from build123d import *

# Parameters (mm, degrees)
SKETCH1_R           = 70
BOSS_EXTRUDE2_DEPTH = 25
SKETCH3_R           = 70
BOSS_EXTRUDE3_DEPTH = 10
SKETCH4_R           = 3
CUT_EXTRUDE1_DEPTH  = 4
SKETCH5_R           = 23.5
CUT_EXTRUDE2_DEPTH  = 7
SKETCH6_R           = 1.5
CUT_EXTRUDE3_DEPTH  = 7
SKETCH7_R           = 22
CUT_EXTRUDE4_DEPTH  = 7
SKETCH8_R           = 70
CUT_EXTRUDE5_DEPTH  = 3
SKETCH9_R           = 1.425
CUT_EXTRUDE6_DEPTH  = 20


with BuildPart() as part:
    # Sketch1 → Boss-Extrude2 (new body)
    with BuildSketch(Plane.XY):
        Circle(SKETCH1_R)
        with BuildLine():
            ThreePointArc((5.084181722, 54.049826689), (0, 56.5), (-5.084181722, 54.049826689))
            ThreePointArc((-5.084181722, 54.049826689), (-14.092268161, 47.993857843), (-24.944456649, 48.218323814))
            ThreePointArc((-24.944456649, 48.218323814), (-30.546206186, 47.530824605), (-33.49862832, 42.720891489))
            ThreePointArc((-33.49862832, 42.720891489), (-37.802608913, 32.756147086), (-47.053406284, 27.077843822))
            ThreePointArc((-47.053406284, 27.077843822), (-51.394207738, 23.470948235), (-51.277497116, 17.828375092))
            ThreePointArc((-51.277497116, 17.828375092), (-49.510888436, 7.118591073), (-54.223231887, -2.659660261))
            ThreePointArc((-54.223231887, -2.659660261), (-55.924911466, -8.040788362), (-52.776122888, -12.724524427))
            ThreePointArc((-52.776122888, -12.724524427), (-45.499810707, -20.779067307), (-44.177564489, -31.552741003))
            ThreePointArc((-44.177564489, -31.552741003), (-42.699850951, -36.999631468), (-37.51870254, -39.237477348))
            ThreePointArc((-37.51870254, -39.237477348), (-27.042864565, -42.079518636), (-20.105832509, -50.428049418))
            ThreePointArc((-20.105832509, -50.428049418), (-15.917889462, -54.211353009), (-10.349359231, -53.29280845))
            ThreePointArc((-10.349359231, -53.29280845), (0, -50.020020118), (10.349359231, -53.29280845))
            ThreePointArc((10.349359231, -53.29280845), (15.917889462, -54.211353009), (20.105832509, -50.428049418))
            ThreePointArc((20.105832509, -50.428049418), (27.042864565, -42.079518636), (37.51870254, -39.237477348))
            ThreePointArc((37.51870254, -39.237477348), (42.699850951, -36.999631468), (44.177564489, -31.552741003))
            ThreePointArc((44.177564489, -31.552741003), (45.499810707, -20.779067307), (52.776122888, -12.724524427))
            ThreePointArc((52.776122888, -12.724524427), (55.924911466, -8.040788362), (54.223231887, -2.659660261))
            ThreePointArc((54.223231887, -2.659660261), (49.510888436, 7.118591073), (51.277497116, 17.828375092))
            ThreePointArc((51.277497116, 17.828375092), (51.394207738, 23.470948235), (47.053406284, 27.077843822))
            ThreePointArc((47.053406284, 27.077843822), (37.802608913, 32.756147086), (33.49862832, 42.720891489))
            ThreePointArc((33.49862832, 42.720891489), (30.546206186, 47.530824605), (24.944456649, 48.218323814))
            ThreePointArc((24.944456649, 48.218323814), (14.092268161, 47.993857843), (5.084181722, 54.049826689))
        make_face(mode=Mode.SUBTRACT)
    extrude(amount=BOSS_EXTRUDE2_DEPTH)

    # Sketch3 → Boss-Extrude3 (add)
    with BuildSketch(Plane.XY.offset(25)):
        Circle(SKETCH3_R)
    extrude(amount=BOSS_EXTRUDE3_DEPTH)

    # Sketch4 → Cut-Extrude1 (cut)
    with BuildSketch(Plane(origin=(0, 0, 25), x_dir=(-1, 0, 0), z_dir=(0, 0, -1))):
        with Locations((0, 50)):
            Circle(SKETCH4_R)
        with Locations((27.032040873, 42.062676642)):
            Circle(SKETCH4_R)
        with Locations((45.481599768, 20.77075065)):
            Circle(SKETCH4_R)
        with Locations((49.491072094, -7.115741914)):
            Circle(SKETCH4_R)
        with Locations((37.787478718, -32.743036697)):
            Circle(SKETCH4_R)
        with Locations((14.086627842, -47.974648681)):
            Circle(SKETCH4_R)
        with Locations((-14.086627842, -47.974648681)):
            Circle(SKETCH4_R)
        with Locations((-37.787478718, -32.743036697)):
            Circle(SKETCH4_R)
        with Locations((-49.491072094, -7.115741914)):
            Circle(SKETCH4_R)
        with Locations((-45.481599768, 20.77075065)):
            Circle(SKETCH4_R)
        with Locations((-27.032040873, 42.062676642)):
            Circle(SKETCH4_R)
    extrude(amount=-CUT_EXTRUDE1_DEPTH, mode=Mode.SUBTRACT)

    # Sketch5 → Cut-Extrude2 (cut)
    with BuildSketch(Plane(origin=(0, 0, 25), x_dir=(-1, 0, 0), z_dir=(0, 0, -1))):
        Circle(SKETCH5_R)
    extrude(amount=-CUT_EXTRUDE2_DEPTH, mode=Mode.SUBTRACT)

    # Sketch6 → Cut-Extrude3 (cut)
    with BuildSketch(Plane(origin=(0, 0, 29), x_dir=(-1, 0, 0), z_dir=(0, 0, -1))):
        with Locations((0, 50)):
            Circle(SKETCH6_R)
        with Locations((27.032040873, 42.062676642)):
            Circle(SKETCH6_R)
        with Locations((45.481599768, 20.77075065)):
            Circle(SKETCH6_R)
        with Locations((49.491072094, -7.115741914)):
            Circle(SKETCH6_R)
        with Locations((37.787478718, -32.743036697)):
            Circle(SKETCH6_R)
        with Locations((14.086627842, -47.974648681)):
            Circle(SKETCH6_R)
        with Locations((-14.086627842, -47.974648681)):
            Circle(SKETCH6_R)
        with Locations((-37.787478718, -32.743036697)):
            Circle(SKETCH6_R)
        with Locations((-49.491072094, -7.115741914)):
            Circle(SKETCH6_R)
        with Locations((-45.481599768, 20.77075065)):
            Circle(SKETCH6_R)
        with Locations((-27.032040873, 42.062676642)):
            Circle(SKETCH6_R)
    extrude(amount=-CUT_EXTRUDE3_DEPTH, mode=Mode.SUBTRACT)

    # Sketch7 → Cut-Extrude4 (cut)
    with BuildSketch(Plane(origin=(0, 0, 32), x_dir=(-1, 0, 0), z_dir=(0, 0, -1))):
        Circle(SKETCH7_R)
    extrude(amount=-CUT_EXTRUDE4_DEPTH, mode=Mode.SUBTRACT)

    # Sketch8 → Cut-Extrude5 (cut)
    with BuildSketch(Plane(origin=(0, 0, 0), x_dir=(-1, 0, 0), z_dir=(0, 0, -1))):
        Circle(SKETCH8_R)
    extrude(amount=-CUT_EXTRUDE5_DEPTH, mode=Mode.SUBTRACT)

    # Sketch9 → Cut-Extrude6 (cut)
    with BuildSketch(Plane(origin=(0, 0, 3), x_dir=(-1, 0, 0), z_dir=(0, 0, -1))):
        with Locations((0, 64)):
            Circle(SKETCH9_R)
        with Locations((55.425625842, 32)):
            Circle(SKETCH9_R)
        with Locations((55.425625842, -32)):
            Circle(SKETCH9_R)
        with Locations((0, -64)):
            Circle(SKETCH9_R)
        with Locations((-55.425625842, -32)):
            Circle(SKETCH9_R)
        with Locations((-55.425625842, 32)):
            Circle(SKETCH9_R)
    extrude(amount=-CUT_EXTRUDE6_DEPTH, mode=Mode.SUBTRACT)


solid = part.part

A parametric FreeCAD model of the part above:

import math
import FreeCAD as App
import Part
import Sketcher
from FreeCAD import Vector

doc = App.newDocument("Part")
params = doc.addObject("Spreadsheet::Sheet", "Params")
for row, (alias, value) in enumerate([
    ("sketch1_diameter", "140 mm"),
    ("sketch1_radius", "18 mm"),
    ("sketch1_radius2", "6.5 mm"),
    ("pad1_length", "25 mm"),
    ("sketch2_diameter", "140 mm"),
    ("pad2_length", "10 mm"),
    ("sketch3_diameter", "6 mm"),
    ("pocket1_length", "4 mm"),
    ("sketch4_diameter", "47 mm"),
    ("pocket2_length", "7 mm"),
    ("sketch5_diameter", "3 mm"),
    ("pocket3_length", "7 mm"),
    ("sketch6_diameter", "44 mm"),
    ("pocket4_length", "7 mm"),
    ("sketch7_diameter", "140 mm"),
    ("pocket5_length", "3 mm"),
    ("sketch8_diameter", "2.85 mm"),
    ("pocket6_length", "20 mm"),
], start=1):
    params.set(f"A{row}", alias)
    params.set(f"B{row}", "=" + value)
    params.setAlias(f"B{row}", alias)

body = doc.addObject("PartDesign::Body", "Body")

# Sketch on XY plane
sketch1 = body.newObject("Sketcher::SketchObject", "Sketch")
sketch1.AttachmentSupport = (doc.getObject("XY_Plane"), [""])
sketch1.MapMode = "FlatFace"
sketch1.addGeometry([
    Part.Circle(Vector(0, 0, 0), Vector(0, 0, 1), 70),  # 0
    Part.ArcOfCircle(Part.Circle(Vector(0, 50, 0), Vector(0, 0, 1), 6), math.radians(39), math.radians(141)),  # 1
    Part.ArcOfCircle(Part.Circle(Vector(19, 65, 0), Vector(0, 0, 1), 18), math.radians(-141), math.radians(-71)),  # 2
    Part.ArcOfCircle(Part.Circle(Vector(27, 42, 0), Vector(0, 0, 1), 6), math.radians(6), math.radians(109)),  # 3
    Part.ArcOfCircle(Part.Circle(Vector(51, 45, 0), Vector(0, 0, 1), 18), math.radians(-174), math.radians(-104)),  # 4
    Part.ArcOfCircle(Part.Circle(Vector(45, 21, 0), Vector(0, 0, 1), 6), math.radians(-27), math.radians(76)),  # 5
    Part.ArcOfCircle(Part.Circle(Vector(67, 10, 0), Vector(0, 0, 1), 18), math.radians(153), math.radians(223)),  # 6
    Part.ArcOfCircle(Part.Circle(Vector(49, -7, 0), Vector(0, 0, 1), 7), math.radians(-60), math.radians(43)),  # 7
    Part.ArcOfCircle(Part.Circle(Vector(62, -28, 0), Vector(0, 0, 1), 18), math.radians(120), math.radians(191)),  # 8
    Part.ArcOfCircle(Part.Circle(Vector(38, -33, 0), Vector(0, 0, 1), 6), math.radians(-92), math.radians(11)),  # 9
    Part.ArcOfCircle(Part.Circle(Vector(37, -57, 0), Vector(0, 0, 1), 18), math.radians(88), math.radians(158)),  # 10
    Part.ArcOfCircle(Part.Circle(Vector(14, -48, 0), Vector(0, 0, 1), 6), math.radians(-125), math.radians(-22)),  # 11
    Part.ArcOfCircle(Part.Circle(Vector(0, -68, 0), Vector(0, 0, 1), 18), math.radians(55), math.radians(125)),  # 12
    Part.ArcOfCircle(Part.Circle(Vector(-14, -48, 0), Vector(0, 0, 1), 6), math.radians(-158), math.radians(-55)),  # 13
    Part.ArcOfCircle(Part.Circle(Vector(-37, -57, 0), Vector(0, 0, 1), 18), math.radians(22), math.radians(92)),  # 14
    Part.ArcOfCircle(Part.Circle(Vector(-38, -33, 0), Vector(0, 0, 1), 6), math.radians(169), math.radians(272)),  # 15
    Part.ArcOfCircle(Part.Circle(Vector(-62, -28, 0), Vector(0, 0, 1), 18), math.radians(-11), math.radians(60)),  # 16
    Part.ArcOfCircle(Part.Circle(Vector(-49, -7, 0), Vector(0, 0, 1), 7), math.radians(137), math.radians(240)),  # 17
    Part.ArcOfCircle(Part.Circle(Vector(-67, 10, 0), Vector(0, 0, 1), 18), math.radians(-43), math.radians(27)),  # 18
    Part.ArcOfCircle(Part.Circle(Vector(-45, 21, 0), Vector(0, 0, 1), 6), math.radians(104), math.radians(207)),  # 19
    Part.ArcOfCircle(Part.Circle(Vector(-51, 45, 0), Vector(0, 0, 1), 18), math.radians(-76), math.radians(-6)),  # 20
    Part.ArcOfCircle(Part.Circle(Vector(-27, 42, 0), Vector(0, 0, 1), 6), math.radians(71), math.radians(174)),  # 21
    Part.ArcOfCircle(Part.Circle(Vector(-19, 65, 0), Vector(0, 0, 1), 18), math.radians(-109), math.radians(-39)),  # 22
], False)
sketch1.addConstraint([
    Sketcher.Constraint("Tangent", 1, 1, 2, 1),
    Sketcher.Constraint("Tangent", 2, 2, 3, 2),
    Sketcher.Constraint("Tangent", 3, 1, 4, 1),
    Sketcher.Constraint("Tangent", 4, 2, 5, 2),
    Sketcher.Constraint("Tangent", 5, 1, 6, 1),
    Sketcher.Constraint("Tangent", 6, 2, 7, 2),
    Sketcher.Constraint("Tangent", 7, 1, 8, 1),
    Sketcher.Constraint("Tangent", 8, 2, 9, 2),
    Sketcher.Constraint("Tangent", 9, 1, 10, 1),
    Sketcher.Constraint("Tangent", 10, 2, 11, 2),
    Sketcher.Constraint("Tangent", 11, 1, 12, 1),
    Sketcher.Constraint("Tangent", 12, 2, 13, 2),
    Sketcher.Constraint("Tangent", 13, 1, 14, 1),
    Sketcher.Constraint("Tangent", 14, 2, 15, 2),
    Sketcher.Constraint("Tangent", 15, 1, 16, 1),
    Sketcher.Constraint("Tangent", 16, 2, 17, 2),
    Sketcher.Constraint("Tangent", 17, 1, 18, 1),
    Sketcher.Constraint("Tangent", 18, 2, 19, 2),
    Sketcher.Constraint("Tangent", 19, 1, 20, 1),
    Sketcher.Constraint("Tangent", 20, 2, 21, 2),
    Sketcher.Constraint("Tangent", 21, 1, 22, 1),
    Sketcher.Constraint("Tangent", 22, 2, 1, 2),
    Sketcher.Constraint("Coincident", 0, 3, -1, 1),
    Sketcher.Constraint("Equal", 1, 3),
    Sketcher.Constraint("Equal", 2, 4),
    Sketcher.Constraint("Equal", 3, 5),
    Sketcher.Constraint("Equal", 4, 6),
    Sketcher.Constraint("Equal", 5, 7),
    Sketcher.Constraint("Equal", 6, 8),
    Sketcher.Constraint("Equal", 7, 9),
    Sketcher.Constraint("Equal", 8, 10),
    Sketcher.Constraint("Equal", 9, 11),
    Sketcher.Constraint("Equal", 10, 12),
    Sketcher.Constraint("Equal", 11, 13),
    Sketcher.Constraint("Equal", 12, 14),
    Sketcher.Constraint("Equal", 13, 15),
    Sketcher.Constraint("Equal", 14, 16),
    Sketcher.Constraint("Equal", 15, 17),
    Sketcher.Constraint("Equal", 16, 18),
    Sketcher.Constraint("Equal", 17, 19),
    Sketcher.Constraint("Equal", 18, 20),
    Sketcher.Constraint("Equal", 19, 21),
    Sketcher.Constraint("Equal", 20, 22),
    Sketcher.Constraint("Symmetric", 11, 3, 13, 3, -2),
    Sketcher.Constraint("Symmetric", 9, 3, 15, 3, -2),
    Sketcher.Constraint("Symmetric", 7, 3, 17, 3, -2),
    Sketcher.Constraint("Symmetric", 5, 3, 19, 3, -2),
    Sketcher.Constraint("Symmetric", 3, 3, 21, 3, -2),
    Sketcher.Constraint("PointOnObject", 1, 3, -2),
    Sketcher.Constraint("Diameter", 0, 140.0),
    Sketcher.Constraint("Radius", 2, 18.0),
    Sketcher.Constraint("Radius", 1, 6.5),
    Sketcher.Constraint("DistanceY", -1, 1, 1, 3, 50.0),
    Sketcher.Constraint("DistanceY", 7, 3, 6, 3, 16.796),
    Sketcher.Constraint("DistanceY", 8, 2, 7, 3, 24.436999),
    Sketcher.Constraint("DistanceX", -1, 1, 4, 3, 51.406101),
    Sketcher.Constraint("DistanceX", -1, 1, 5, 3, 45.4816),
    Sketcher.Constraint("DistanceX", -1, 1, 10, 3, 36.774399),
    Sketcher.Constraint("DistanceY", 9, 3, 8, 3, 4.486499),
    Sketcher.Constraint("DistanceY", 10, 2, 11, 3, 2.453401),
    Sketcher.Constraint("DistanceY", -1, 1, 2, 3, 65.264731),
    Sketcher.Constraint("DistanceX", -1, 1, 3, 3, 27.032041),
    Sketcher.Constraint("DistanceY", -1, 1, 6, 3, 9.680258),
])
sketch1.setExpression("Constraints[49]", "Params.sketch1_diameter")
sketch1.setExpression("Constraints[50]", "Params.sketch1_radius")
sketch1.setExpression("Constraints[51]", "Params.sketch1_radius2")
pad1 = body.newObject("PartDesign::Pad", "Pad")
pad1.Profile = sketch1
pad1.setExpression("Length", "Params.pad1_length")

# Sketch on XY plane
sketch2 = body.newObject("Sketcher::SketchObject", "Sketch001")
sketch2.AttachmentSupport = (doc.getObject("XY_Plane"), [""])
sketch2.MapMode = "FlatFace"
sketch2.AttachmentOffset = App.Placement(Vector(0, 0, 25), App.Rotation())
sketch2.addGeometry(Part.Circle(Vector(0, 0, 0), Vector(0, 0, 1), 70), False)
sketch2.addConstraint([
    Sketcher.Constraint("Coincident", 0, 3, -1, 1),
    Sketcher.Constraint("Diameter", 0, 140.0),
])
sketch2.setExpression("Constraints[1]", "Params.sketch2_diameter")
pad2 = body.newObject("PartDesign::Pad", "Pad001")
pad2.Profile = sketch2
pad2.setExpression("Length", "Params.pad2_length")

# Sketch on XY plane
sketch3 = body.newObject("Sketcher::SketchObject", "Sketch002")
sketch3.AttachmentSupport = (doc.getObject("XY_Plane"), [""])
sketch3.MapMode = "FlatFace"
sketch3.AttachmentOffset = App.Placement(Vector(0, 0, 25), App.Rotation())
sketch3.addGeometry([
    Part.Circle(Vector(0, 50, 0), Vector(0, 0, 1), 3),  # 0
    Part.Circle(Vector(-27, 42.1, 0), Vector(0, 0, 1), 3),  # 1
    Part.Circle(Vector(-45.5, 20.8, 0), Vector(0, 0, 1), 3),  # 2
    Part.Circle(Vector(-49.5, -7.1, 0), Vector(0, 0, 1), 3),  # 3
    Part.Circle(Vector(-37.8, -32.7, 0), Vector(0, 0, 1), 3),  # 4
    Part.Circle(Vector(-14.1, -48, 0), Vector(0, 0, 1), 3),  # 5
    Part.Circle(Vector(14.1, -48, 0), Vector(0, 0, 1), 3),  # 6
    Part.Circle(Vector(37.8, -32.7, 0), Vector(0, 0, 1), 3),  # 7
    Part.Circle(Vector(49.5, -7.1, 0), Vector(0, 0, 1), 3),  # 8
    Part.Circle(Vector(45.5, 20.8, 0), Vector(0, 0, 1), 3),  # 9
    Part.Circle(Vector(27, 42.1, 0), Vector(0, 0, 1), 3),  # 10
], False)
sketch3.addConstraint([
    Sketcher.Constraint("Equal", 0, 1),
    Sketcher.Constraint("Equal", 1, 2),
    Sketcher.Constraint("Equal", 2, 3),
    Sketcher.Constraint("Equal", 3, 4),
    Sketcher.Constraint("Equal", 4, 5),
    Sketcher.Constraint("Equal", 5, 6),
    Sketcher.Constraint("Equal", 6, 7),
    Sketcher.Constraint("Equal", 7, 8),
    Sketcher.Constraint("Equal", 8, 9),
    Sketcher.Constraint("Equal", 9, 10),
    Sketcher.Constraint("Symmetric", 5, 3, 6, 3, -2),
    Sketcher.Constraint("Symmetric", 4, 3, 7, 3, -2),
    Sketcher.Constraint("Symmetric", 3, 3, 8, 3, -2),
    Sketcher.Constraint("Symmetric", 2, 3, 9, 3, -2),
    Sketcher.Constraint("Symmetric", 1, 3, 10, 3, -2),
    Sketcher.Constraint("PointOnObject", 0, 3, -2),
    Sketcher.Constraint("Diameter", 0, 6.0),
    Sketcher.Constraint("DistanceY", -1, 1, 0, 3, 50.0),
    Sketcher.Constraint("DistanceX", 2, 3, -1, 1, 45.4816),
    Sketcher.Constraint("DistanceY", 5, 3, 2, 3, 68.745399),
    Sketcher.Constraint("DistanceX", 3, 3, 6, 3, 63.5777),
    Sketcher.Constraint("DistanceX", 1, 3, -1, 1, 27.032041),
    Sketcher.Constraint("DistanceY", -1, 1, 2, 3, 20.770751),
    Sketcher.Constraint("DistanceY", 3, 3, -1, 1, 7.115742),
    Sketcher.Constraint("DistanceX", 4, 3, -1, 1, 37.787479),
    Sketcher.Constraint("DistanceX", 3, 3, 1, 3, 22.459031),
    Sketcher.Constraint("DistanceY", 3, 3, 1, 3, 49.178419),
    Sketcher.Constraint("DistanceY", 5, 3, 4, 3, 15.231612),
])
sketch3.setExpression("Constraints[16]", "Params.sketch3_diameter")
pocket1 = body.newObject("PartDesign::Pocket", "Pocket")
pocket1.Profile = sketch3
pocket1.setExpression("Length", "Params.pocket1_length")
pocket1.Reversed = True

# Sketch on XY plane
sketch4 = body.newObject("Sketcher::SketchObject", "Sketch003")
sketch4.AttachmentSupport = (doc.getObject("XY_Plane"), [""])
sketch4.MapMode = "FlatFace"
sketch4.AttachmentOffset = App.Placement(Vector(0, 0, 25), App.Rotation())
sketch4.addGeometry(Part.Circle(Vector(0, 0, 0), Vector(0, 0, 1), 24), False)
sketch4.addConstraint([
    Sketcher.Constraint("Coincident", 0, 3, -1, 1),
    Sketcher.Constraint("Diameter", 0, 47.0),
])
sketch4.setExpression("Constraints[1]", "Params.sketch4_diameter")
pocket2 = body.newObject("PartDesign::Pocket", "Pocket001")
pocket2.Profile = sketch4
pocket2.setExpression("Length", "Params.pocket2_length")
pocket2.Reversed = True

# Sketch on XY plane
sketch5 = body.newObject("Sketcher::SketchObject", "Sketch004")
sketch5.AttachmentSupport = (doc.getObject("XY_Plane"), [""])
sketch5.MapMode = "FlatFace"
sketch5.AttachmentOffset = App.Placement(Vector(0, 0, 29), App.Rotation())
sketch5.addGeometry([
    Part.Circle(Vector(0, 50, 0), Vector(0, 0, 1), 1.5),  # 0
    Part.Circle(Vector(-27, 42.1, 0), Vector(0, 0, 1), 1.5),  # 1
    Part.Circle(Vector(-45.5, 20.8, 0), Vector(0, 0, 1), 1.5),  # 2
    Part.Circle(Vector(-49.5, -7.1, 0), Vector(0, 0, 1), 1.5),  # 3
    Part.Circle(Vector(-37.8, -32.7, 0), Vector(0, 0, 1), 1.5),  # 4
    Part.Circle(Vector(-14.1, -48, 0), Vector(0, 0, 1), 1.5),  # 5
    Part.Circle(Vector(14.1, -48, 0), Vector(0, 0, 1), 1.5),  # 6
    Part.Circle(Vector(37.8, -32.7, 0), Vector(0, 0, 1), 1.5),  # 7
    Part.Circle(Vector(49.5, -7.1, 0), Vector(0, 0, 1), 1.5),  # 8
    Part.Circle(Vector(45.5, 20.8, 0), Vector(0, 0, 1), 1.5),  # 9
    Part.Circle(Vector(27, 42.1, 0), Vector(0, 0, 1), 1.5),  # 10
], False)
sketch5.addConstraint([
    Sketcher.Constraint("Equal", 0, 1),
    Sketcher.Constraint("Equal", 1, 2),
    Sketcher.Constraint("Equal", 2, 3),
    Sketcher.Constraint("Equal", 3, 4),
    Sketcher.Constraint("Equal", 4, 5),
    Sketcher.Constraint("Equal", 5, 6),
    Sketcher.Constraint("Equal", 6, 7),
    Sketcher.Constraint("Equal", 7, 8),
    Sketcher.Constraint("Equal", 8, 9),
    Sketcher.Constraint("Equal", 9, 10),
    Sketcher.Constraint("Symmetric", 5, 3, 6, 3, -2),
    Sketcher.Constraint("Symmetric", 4, 3, 7, 3, -2),
    Sketcher.Constraint("Symmetric", 3, 3, 8, 3, -2),
    Sketcher.Constraint("Symmetric", 2, 3, 9, 3, -2),
    Sketcher.Constraint("Symmetric", 1, 3, 10, 3, -2),
    Sketcher.Constraint("PointOnObject", 0, 3, -2),
    Sketcher.Constraint("Diameter", 0, 3.0),
    Sketcher.Constraint("DistanceY", -1, 1, 0, 3, 50.0),
    Sketcher.Constraint("DistanceX", 2, 3, -1, 1, 45.4816),
    Sketcher.Constraint("DistanceY", 5, 3, 2, 3, 68.745399),
    Sketcher.Constraint("DistanceX", 3, 3, 6, 3, 63.5777),
    Sketcher.Constraint("DistanceX", 1, 3, -1, 1, 27.032041),
    Sketcher.Constraint("DistanceY", -1, 1, 2, 3, 20.770751),
    Sketcher.Constraint("DistanceY", 3, 3, -1, 1, 7.115742),
    Sketcher.Constraint("DistanceX", 4, 3, -1, 1, 37.787479),
    Sketcher.Constraint("DistanceX", 3, 3, 1, 3, 22.459031),
    Sketcher.Constraint("DistanceY", 3, 3, 1, 3, 49.178419),
    Sketcher.Constraint("DistanceY", 5, 3, 4, 3, 15.231612),
])
sketch5.setExpression("Constraints[16]", "Params.sketch5_diameter")
pocket3 = body.newObject("PartDesign::Pocket", "Pocket002")
pocket3.Profile = sketch5
pocket3.setExpression("Length", "Params.pocket3_length")
pocket3.Reversed = True

# Sketch on XY plane
sketch6 = body.newObject("Sketcher::SketchObject", "Sketch005")
sketch6.AttachmentSupport = (doc.getObject("XY_Plane"), [""])
sketch6.MapMode = "FlatFace"
sketch6.AttachmentOffset = App.Placement(Vector(0, 0, 32), App.Rotation())
sketch6.addGeometry(Part.Circle(Vector(0, 0, 0), Vector(0, 0, 1), 22), False)
sketch6.addConstraint([
    Sketcher.Constraint("Coincident", 0, 3, -1, 1),
    Sketcher.Constraint("Diameter", 0, 44.0),
])
sketch6.setExpression("Constraints[1]", "Params.sketch6_diameter")
pocket4 = body.newObject("PartDesign::Pocket", "Pocket003")
pocket4.Profile = sketch6
pocket4.setExpression("Length", "Params.pocket4_length")
pocket4.Reversed = True

# Sketch on XY plane
sketch7 = body.newObject("Sketcher::SketchObject", "Sketch006")
sketch7.AttachmentSupport = (doc.getObject("XY_Plane"), [""])
sketch7.MapMode = "FlatFace"
sketch7.addGeometry(Part.Circle(Vector(0, 0, 0), Vector(0, 0, 1), 70), False)
sketch7.addConstraint([
    Sketcher.Constraint("Coincident", 0, 3, -1, 1),
    Sketcher.Constraint("Diameter", 0, 140.0),
])
sketch7.setExpression("Constraints[1]", "Params.sketch7_diameter")
pocket5 = body.newObject("PartDesign::Pocket", "Pocket004")
pocket5.Profile = sketch7
pocket5.setExpression("Length", "Params.pocket5_length")
pocket5.Reversed = True

# Sketch on XY plane
sketch8 = body.newObject("Sketcher::SketchObject", "Sketch007")
sketch8.AttachmentSupport = (doc.getObject("XY_Plane"), [""])
sketch8.MapMode = "FlatFace"
sketch8.AttachmentOffset = App.Placement(Vector(0, 0, 3), App.Rotation())
sketch8.addGeometry([
    Part.Circle(Vector(0, 64, 0), Vector(0, 0, 1), 1.4),  # 0
    Part.Circle(Vector(-55.4, 32, 0), Vector(0, 0, 1), 1.4),  # 1
    Part.Circle(Vector(-55.4, -32, 0), Vector(0, 0, 1), 1.4),  # 2
    Part.Circle(Vector(0, -64, 0), Vector(0, 0, 1), 1.4),  # 3
    Part.Circle(Vector(55.4, -32, 0), Vector(0, 0, 1), 1.4),  # 4
    Part.Circle(Vector(55.4, 32, 0), Vector(0, 0, 1), 1.4),  # 5
], False)
sketch8.addConstraint([
    Sketcher.Constraint("Equal", 0, 1),
    Sketcher.Constraint("Equal", 1, 2),
    Sketcher.Constraint("Equal", 2, 3),
    Sketcher.Constraint("Equal", 3, 4),
    Sketcher.Constraint("Equal", 4, 5),
    Sketcher.Constraint("Symmetric", 0, 3, 3, 3, -1, 1),
    Sketcher.Constraint("Symmetric", 1, 3, 4, 3, -1, 1),
    Sketcher.Constraint("Symmetric", 2, 3, 5, 3, -1, 1),
    Sketcher.Constraint("Symmetric", 2, 3, 4, 3, -2),
    Sketcher.Constraint("PointOnObject", 0, 3, -2),
    Sketcher.Constraint("Diameter", 0, 2.85),
    Sketcher.Constraint("DistanceY", -1, 1, 0, 3, 64.0),
    Sketcher.Constraint("DistanceY", -1, 1, 1, 3, 32.0),
    Sketcher.Constraint("DistanceX", 2, 3, 4, 3, 110.851252),
])
sketch8.setExpression("Constraints[10]", "Params.sketch8_diameter")
pocket6 = body.newObject("PartDesign::Pocket", "Pocket005")
pocket6.Profile = sketch8
pocket6.setExpression("Length", "Params.pocket6_length")
pocket6.Reversed = True

doc.recompute()
